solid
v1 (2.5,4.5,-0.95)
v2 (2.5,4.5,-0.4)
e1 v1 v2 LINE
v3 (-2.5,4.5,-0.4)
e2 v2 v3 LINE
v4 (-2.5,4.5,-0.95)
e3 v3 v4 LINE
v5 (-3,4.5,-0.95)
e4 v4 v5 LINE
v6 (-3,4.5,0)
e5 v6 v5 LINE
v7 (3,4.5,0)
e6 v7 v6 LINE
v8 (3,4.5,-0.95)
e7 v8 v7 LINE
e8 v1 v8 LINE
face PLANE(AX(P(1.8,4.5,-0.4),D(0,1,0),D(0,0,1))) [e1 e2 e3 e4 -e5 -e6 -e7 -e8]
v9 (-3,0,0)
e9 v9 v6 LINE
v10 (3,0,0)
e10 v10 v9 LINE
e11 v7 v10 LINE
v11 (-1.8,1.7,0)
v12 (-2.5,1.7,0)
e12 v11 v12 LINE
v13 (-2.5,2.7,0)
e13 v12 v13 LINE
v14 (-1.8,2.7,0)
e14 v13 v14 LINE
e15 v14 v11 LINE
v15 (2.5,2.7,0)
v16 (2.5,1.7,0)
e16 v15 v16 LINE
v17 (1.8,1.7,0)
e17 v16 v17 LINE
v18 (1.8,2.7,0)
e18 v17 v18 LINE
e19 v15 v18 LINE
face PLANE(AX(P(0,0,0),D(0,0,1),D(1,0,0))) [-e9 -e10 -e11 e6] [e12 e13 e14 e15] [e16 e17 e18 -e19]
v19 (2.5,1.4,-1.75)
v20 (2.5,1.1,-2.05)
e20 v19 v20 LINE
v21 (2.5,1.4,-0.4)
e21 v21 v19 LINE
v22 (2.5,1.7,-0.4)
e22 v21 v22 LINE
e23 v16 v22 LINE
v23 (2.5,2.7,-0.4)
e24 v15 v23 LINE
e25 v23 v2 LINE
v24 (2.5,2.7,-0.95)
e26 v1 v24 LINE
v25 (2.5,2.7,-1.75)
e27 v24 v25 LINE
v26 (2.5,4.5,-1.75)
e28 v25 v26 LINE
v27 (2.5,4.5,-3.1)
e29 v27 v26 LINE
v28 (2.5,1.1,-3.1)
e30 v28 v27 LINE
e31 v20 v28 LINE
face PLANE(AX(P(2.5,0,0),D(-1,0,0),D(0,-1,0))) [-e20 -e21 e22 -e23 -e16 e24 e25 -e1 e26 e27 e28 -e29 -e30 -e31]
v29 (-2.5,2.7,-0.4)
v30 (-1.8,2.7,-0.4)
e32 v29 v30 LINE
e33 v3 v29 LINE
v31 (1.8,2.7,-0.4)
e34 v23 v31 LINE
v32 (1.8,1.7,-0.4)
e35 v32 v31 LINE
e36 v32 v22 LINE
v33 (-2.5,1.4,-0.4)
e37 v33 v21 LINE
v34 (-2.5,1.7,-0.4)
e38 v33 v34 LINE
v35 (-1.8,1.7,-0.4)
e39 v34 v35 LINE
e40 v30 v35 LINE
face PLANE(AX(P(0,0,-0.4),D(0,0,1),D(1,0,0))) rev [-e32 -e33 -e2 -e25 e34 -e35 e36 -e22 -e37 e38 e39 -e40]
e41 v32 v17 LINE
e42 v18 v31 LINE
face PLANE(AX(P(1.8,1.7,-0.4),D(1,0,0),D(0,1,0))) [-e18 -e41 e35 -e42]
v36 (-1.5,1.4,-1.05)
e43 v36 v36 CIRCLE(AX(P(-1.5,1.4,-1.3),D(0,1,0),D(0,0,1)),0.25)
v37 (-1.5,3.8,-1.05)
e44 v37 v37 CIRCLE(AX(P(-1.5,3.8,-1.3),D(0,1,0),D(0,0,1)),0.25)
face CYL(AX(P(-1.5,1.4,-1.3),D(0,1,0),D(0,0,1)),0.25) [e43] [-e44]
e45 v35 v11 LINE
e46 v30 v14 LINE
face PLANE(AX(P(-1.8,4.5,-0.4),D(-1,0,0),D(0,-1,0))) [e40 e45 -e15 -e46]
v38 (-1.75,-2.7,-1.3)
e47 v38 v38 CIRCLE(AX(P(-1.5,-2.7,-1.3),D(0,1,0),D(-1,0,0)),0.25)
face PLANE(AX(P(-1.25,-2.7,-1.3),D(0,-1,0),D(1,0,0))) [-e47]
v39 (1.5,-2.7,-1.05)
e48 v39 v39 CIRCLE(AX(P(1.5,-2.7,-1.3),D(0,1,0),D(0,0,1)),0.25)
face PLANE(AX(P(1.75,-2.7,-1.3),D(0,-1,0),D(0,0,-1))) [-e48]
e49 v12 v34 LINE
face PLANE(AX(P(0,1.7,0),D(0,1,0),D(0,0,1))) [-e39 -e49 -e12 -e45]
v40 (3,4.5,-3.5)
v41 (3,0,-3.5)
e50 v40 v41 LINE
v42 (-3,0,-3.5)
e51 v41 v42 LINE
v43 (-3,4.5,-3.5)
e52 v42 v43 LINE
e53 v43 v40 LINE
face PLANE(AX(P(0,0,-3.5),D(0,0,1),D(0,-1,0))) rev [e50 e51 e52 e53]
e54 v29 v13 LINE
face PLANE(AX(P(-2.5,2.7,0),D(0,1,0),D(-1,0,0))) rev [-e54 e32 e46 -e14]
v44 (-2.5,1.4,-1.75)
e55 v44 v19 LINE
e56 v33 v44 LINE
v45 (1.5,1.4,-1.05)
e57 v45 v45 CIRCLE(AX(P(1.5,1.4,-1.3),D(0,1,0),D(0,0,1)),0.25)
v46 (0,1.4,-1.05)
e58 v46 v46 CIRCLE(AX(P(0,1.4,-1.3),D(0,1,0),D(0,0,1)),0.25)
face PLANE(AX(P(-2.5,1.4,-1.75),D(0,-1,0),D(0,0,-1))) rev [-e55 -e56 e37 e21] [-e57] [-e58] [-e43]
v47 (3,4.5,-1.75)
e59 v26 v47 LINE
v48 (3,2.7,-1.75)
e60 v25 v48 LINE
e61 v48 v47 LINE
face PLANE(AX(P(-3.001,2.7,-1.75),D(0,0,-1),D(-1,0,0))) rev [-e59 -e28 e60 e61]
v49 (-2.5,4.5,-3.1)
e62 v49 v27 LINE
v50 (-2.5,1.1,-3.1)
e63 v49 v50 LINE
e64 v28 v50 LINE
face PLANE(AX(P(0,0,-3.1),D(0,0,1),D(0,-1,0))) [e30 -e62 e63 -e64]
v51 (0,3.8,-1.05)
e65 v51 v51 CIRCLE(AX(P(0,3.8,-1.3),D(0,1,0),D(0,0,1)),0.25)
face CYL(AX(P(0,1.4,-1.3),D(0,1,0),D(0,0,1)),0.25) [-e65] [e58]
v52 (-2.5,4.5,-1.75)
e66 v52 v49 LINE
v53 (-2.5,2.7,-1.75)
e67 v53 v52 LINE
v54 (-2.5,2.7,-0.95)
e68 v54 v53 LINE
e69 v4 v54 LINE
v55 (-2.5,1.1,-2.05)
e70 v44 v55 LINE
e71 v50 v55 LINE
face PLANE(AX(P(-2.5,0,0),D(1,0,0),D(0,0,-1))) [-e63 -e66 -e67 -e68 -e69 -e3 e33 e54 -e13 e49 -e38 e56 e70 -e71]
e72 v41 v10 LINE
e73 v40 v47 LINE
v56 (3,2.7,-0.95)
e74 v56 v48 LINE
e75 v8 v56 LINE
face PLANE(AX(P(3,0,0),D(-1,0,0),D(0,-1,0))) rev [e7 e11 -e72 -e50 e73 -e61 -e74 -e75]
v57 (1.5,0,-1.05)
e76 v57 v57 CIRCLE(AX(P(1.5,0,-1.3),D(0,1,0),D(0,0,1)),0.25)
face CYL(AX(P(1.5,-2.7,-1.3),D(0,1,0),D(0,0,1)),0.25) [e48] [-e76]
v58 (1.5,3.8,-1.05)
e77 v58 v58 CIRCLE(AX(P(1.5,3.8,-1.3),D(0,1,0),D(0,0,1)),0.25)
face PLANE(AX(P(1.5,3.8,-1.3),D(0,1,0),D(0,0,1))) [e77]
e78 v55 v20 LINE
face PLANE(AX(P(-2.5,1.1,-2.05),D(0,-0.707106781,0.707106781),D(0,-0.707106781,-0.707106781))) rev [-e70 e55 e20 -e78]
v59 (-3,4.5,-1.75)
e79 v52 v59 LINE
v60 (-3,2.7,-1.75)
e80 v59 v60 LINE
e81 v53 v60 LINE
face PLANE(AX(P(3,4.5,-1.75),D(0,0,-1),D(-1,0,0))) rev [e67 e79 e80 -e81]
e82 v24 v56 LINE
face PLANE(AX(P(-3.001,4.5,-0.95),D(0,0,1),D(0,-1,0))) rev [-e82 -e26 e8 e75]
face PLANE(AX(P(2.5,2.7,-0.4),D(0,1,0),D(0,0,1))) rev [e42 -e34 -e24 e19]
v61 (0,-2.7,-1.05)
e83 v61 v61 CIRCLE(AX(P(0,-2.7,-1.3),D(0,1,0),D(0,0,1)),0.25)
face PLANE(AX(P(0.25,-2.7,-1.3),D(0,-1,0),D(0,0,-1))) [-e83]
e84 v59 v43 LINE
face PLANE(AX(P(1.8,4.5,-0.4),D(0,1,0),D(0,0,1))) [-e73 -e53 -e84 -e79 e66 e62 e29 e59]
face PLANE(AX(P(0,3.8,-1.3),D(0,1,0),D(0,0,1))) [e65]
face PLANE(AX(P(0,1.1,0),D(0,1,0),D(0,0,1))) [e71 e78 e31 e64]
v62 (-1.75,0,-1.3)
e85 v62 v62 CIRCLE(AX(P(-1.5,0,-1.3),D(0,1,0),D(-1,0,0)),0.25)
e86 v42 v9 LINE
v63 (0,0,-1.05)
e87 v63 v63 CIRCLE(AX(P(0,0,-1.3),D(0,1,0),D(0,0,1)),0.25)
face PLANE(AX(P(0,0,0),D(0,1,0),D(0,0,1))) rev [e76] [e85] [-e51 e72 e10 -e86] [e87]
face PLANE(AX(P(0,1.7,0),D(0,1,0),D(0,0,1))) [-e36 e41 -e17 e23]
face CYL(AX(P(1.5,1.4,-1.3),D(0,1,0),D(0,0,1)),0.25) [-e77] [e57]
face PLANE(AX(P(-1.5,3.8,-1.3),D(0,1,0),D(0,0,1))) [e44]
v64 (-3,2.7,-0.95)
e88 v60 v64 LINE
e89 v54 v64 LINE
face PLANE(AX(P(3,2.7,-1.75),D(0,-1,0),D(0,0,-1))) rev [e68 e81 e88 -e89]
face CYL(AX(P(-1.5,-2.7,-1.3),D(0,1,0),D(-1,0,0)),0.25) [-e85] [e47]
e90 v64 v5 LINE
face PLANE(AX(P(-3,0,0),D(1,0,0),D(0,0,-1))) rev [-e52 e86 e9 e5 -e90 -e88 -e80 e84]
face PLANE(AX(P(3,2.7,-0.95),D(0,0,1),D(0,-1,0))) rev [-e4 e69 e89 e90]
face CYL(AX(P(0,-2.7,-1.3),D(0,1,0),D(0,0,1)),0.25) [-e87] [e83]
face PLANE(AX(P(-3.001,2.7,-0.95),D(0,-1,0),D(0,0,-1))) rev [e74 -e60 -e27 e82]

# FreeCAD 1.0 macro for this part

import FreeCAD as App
import Part
import Sketcher
from FreeCAD import Vector
Q = App.Units.Quantity


def add_polygon(sketch, points):
    """Adds a closed chain of lines whose ends are joined by coincident constraints."""
    first, n = sketch.GeometryCount, len(points)
    for a, b in zip(points, points[1:] + points[:1]):
        sketch.addGeometry(Part.LineSegment(App.Vector(*a, 0), App.Vector(*b, 0)), False)
    for i in range(n):
        sketch.addConstraint(Sketcher.Constraint("Coincident", first + i, 2, first + (i + 1) % n, 1))

doc = App.newDocument("Part")
body = doc.addObject("PartDesign::Body", "Body")

# Sketch on XY plane
sketch1 = body.newObject("Sketcher::SketchObject", "Sketch")
sketch1.AttachmentSupport = (doc.getObject("XY_Plane"), [""])
sketch1.MapMode = "FlatFace"
add_polygon(sketch1, [(-1.8, 4.5), (-1.8, 1.7), (1.8, 1.7), (1.8, 4.5)])  # lines 0-3
sketch1.addConstraint([
    Sketcher.Constraint("Vertical", 0),
    Sketcher.Constraint("Horizontal", 1),
    Sketcher.Constraint("Vertical", 2),
    Sketcher.Constraint("Horizontal", 3),
    Sketcher.Constraint("DistanceX", 1, 1, 1, 2, 3.6),
    Sketcher.Constraint("DistanceY", 0, 2, 0, 1, 2.8),
    Sketcher.Constraint("DistanceX", 0, 2, -1, 1, 1.8),
    Sketcher.Constraint("DistanceY", -1, 1, 0, 2, 1.7),
])
pad1 = body.newObject("PartDesign::Pad", "Pad")
pad1.Profile = sketch1
pad1.Length = 0.4
pad1.Reversed = True

# Sketch on YZ plane
sketch2 = body.newObject("Sketcher::SketchObject", "Sketch001")
sketch2.AttachmentSupport = (doc.getObject("YZ_Plane"), [""])
sketch2.MapMode = "FlatFace"
sketch2.AttachmentOffset = App.Placement(Vector(0, 0, -1.8), App.Rotation())
add_polygon(sketch2, [(4.5, -0.4), (2.7, -0.4), (2.7, 0), (4.5, 0)])  # lines 0-3
sketch2.addConstraint([
    Sketcher.Constraint("Horizontal", 0),
    Sketcher.Constraint("Vertical", 1),
    Sketcher.Constraint("Horizontal", 2),
    Sketcher.Constraint("Vertical", 3),
    Sketcher.Constraint("PointOnObject", 1, 2, -1),
    Sketcher.Constraint("DistanceX", 0, 2, 0, 1, 1.8),
    Sketcher.Constraint("DistanceY", 1, 1, 1, 2, 0.4),
    Sketcher.Constraint("DistanceX", -1, 1, 0, 2, 2.7),
])
pad2 = body.newObject("PartDesign::Pad", "Pad001")
pad2.Profile = sketch2
pad2.Length = 0.7
pad2.Reversed = True

# Sketch on YZ plane
sketch3 = body.newObject("Sketcher::SketchObject", "Sketch002")
sketch3.AttachmentSupport = (doc.getObject("YZ_Plane"), [""])
sketch3.MapMode = "FlatFace"
sketch3.AttachmentOffset = App.Placement(Vector(0, 0, 1.8), App.Rotation())
add_polygon(sketch3, [(4.5, 0), (2.7, 0), (2.7, -0.4), (4.5, -0.4)])  # lines 0-3
sketch3.addConstraint([
    Sketcher.Constraint("Horizontal", 0),
    Sketcher.Constraint("Vertical", 1),
    Sketcher.Constraint("Horizontal", 2),
    Sketcher.Constraint("Vertical", 3),
    Sketcher.Constraint("PointOnObject", 0, 2, -1),
    Sketcher.Constraint("DistanceX", 0, 2, 0, 1, 1.8),
    Sketcher.Constraint("DistanceY", 1, 2, 1, 1, 0.4),
    Sketcher.Constraint("DistanceX", -1, 1, 0, 2, 2.7),
])
pad3 = body.newObject("PartDesign::Pad", "Pad002")
pad3.Profile = sketch3
pad3.Length = 0.7

# Sketch on YZ plane
sketch4 = body.newObject("Sketcher::SketchObject", "Sketch003")
sketch4.AttachmentSupport = (doc.getObject("YZ_Plane"), [""])
sketch4.MapMode = "FlatFace"
sketch4.AttachmentOffset = App.Placement(Vector(0, 0, 2.5), App.Rotation())
add_polygon(sketch4, [(4.5, 0), (1.7, 0), (1.7, -3.1), (4.5, -3.1)])  # lines 0-3
sketch4.addConstraint([
    Sketcher.Constraint("Horizontal", 0),
    Sketcher.Constraint("Vertical", 1),
    Sketcher.Constraint("Horizontal", 2),
    Sketcher.Constraint("Vertical", 3),
    Sketcher.Constraint("PointOnObject", 0, 2, -1),
    Sketcher.Constraint("DistanceX", 0, 2, 0, 1, 2.8),
    Sketcher.Constraint("DistanceY", 1, 2, 1, 1, 3.1),
    Sketcher.Constraint("DistanceX", -1, 1, 0, 2, 1.7),
])
pad4 = body.newObject("PartDesign::Pad", "Pad003")
pad4.Profile = sketch4
pad4.Length = 0.5

# Sketch on XZ plane
sketch5 = body.newObject("Sketcher::SketchObject", "Sketch004")
sketch5.AttachmentSupport = (doc.getObject("XZ_Plane"), [""])
sketch5.MapMode = "FlatFace"
sketch5.AttachmentOffset = App.Placement(Vector(0, 0, -1.7), App.Rotation())
add_polygon(sketch5, [(-2.5, 0), (-2.5, -3.1), (3, -3.1), (3, 0)])  # lines 0-3
sketch5.addConstraint([
    Sketcher.Constraint("Vertical", 0),
    Sketcher.Constraint("Horizontal", 1),
    Sketcher.Constraint("Vertical", 2),
    Sketcher.Constraint("Horizontal", 3),
    Sketcher.Constraint("PointOnObject", 2, 2, -1),
    Sketcher.Constraint("DistanceX", 1, 1, 1, 2, 5.5),
    Sketcher.Constraint("DistanceY", 0, 2, 0, 1, 3.1),
    Sketcher.Constraint("DistanceX", -1, 1, 1, 2, 3.0),
])
pad5 = body.newObject("PartDesign::Pad", "Pad004")
pad5.Profile = sketch5
pad5.Length = 1.7

# Sketch on YZ plane
sketch6 = body.newObject("Sketcher::SketchObject", "Sketch005")
sketch6.AttachmentSupport = (doc.getObject("YZ_Plane"), [""])
sketch6.MapMode = "FlatFace"
sketch6.AttachmentOffset = App.Placement(Vector(0, 0, -2.5), App.Rotation())
add_polygon(sketch6, [(4.5, -3.1), (0, -3.1), (0, 0), (4.5, 0)])  # lines 0-3
sketch6.addConstraint([
    Sketcher.Constraint("Horizontal", 0),
    Sketcher.Constraint("Vertical", 1),
    Sketcher.Constraint("Horizontal", 2),
    Sketcher.Constraint("Vertical", 3),
    Sketcher.Constraint("Coincident", 1, 2, -1, 1),
    Sketcher.Constraint("DistanceX", 0, 2, 0, 1, 4.5),
    Sketcher.Constraint("DistanceY", 1, 1, 1, 2, 3.1),
])
pad6 = body.newObject("PartDesign::Pad", "Pad005")
pad6.Profile = sketch6
pad6.Length = 0.5
pad6.Reversed = True

# Sketch on XY plane
sketch7 = body.newObject("Sketcher::SketchObject", "Sketch006")
sketch7.AttachmentSupport = (doc.getObject("XY_Plane"), [""])
sketch7.MapMode = "FlatFace"
sketch7.AttachmentOffset = App.Placement(Vector(0, 0, -3.1), App.Rotation())
add_polygon(sketch7, [(3, 4.5), (3, 0), (-3, 0), (-3, 4.5)])  # lines 0-3
sketch7.addConstraint([
    Sketcher.Constraint("Vertical", 0),
    Sketcher.Constraint("Horizontal", 1),
    Sketcher.Constraint("Vertical", 2),
    Sketcher.Constraint("Horizontal", 3),
    Sketcher.Constraint("Symmetric", 0, 2, 1, 2, -1, 1),
    Sketcher.Constraint("DistanceX", 1, 2, 1, 1, 6.0),
    Sketcher.Constraint("DistanceY", 0, 2, 0, 1, 4.5),
])
pad7 = body.newObject("PartDesign::Pad", "Pad006")
pad7.Profile = sketch7
pad7.Length = 0.4
pad7.Reversed = True

# Sketch on XZ plane
sketch8 = body.newObject("Sketcher::SketchObject", "Sketch007")
sketch8.AttachmentSupport = (doc.getObject("XZ_Plane"), [""])
sketch8.MapMode = "FlatFace"
sketch8.AttachmentOffset = App.Placement(Vector(0, 0, -1.7), App.Rotation())
add_polygon(sketch8, [(2.5, -0.4), (2.5, -3.1), (-2.5, -3.1), (-2.5, -0.4)])  # lines 0-3
sketch8.addConstraint([
    Sketcher.Constraint("Vertical", 0),
    Sketcher.Constraint("Horizontal", 1),
    Sketcher.Constraint("Vertical", 2),
    Sketcher.Constraint("Horizontal", 3),
    Sketcher.Constraint("DistanceX", 1, 2, 1, 1, 5.0),
    Sketcher.Constraint("DistanceY", 0, 2, 0, 1, 2.7),
    Sketcher.Constraint("DistanceX", -1, 1, 0, 2, 2.5),
    Sketcher.Constraint("DistanceY", 0, 2, -1, 1, 3.1),
])
pocket1 = body.newObject("PartDesign::Pocket", "Pocket")
pocket1.Profile = sketch8
pocket1.Length = 0.6
pocket1.Reversed = True

# Sketch on YZ plane
sketch9 = body.newObject("Sketcher::SketchObject", "Sketch008")
sketch9.AttachmentSupport = (doc.getObject("YZ_Plane"), [""])
sketch9.MapMode = "FlatFace"
sketch9.AttachmentOffset = App.Placement(Vector(0, 0, 2.5), App.Rotation())
add_polygon(sketch9, [(1.1, -0.4), (1.4, -0.4), (1.4, -1.75), (1.1, -2.05)])  # lines 0-3
sketch9.addConstraint([
    Sketcher.Constraint("Horizontal", 0),
    Sketcher.Constraint("Vertical", 1),
    Sketcher.Constraint("Vertical", 3),
    Sketcher.Constraint("Angle", 2, Q("-135 deg")),
    Sketcher.Constraint("DistanceX", 0, 1, 0, 2, 0.3),
    Sketcher.Constraint("DistanceY", 1, 2, 1, 1, 1.35),
    Sketcher.Constraint("DistanceX", -1, 1, 0, 2, 1.4),
    Sketcher.Constraint("DistanceY", 0, 2, -1, 1, 0.4),
])
pad8 = body.newObject("PartDesign::Pad", "Pad007")
pad8.Profile = sketch9
pad8.Length = 5
pad8.Reversed = True

# Sketch on YZ plane
sketch10 = body.newObject("Sketcher::SketchObject", "Sketch009")
sketch10.AttachmentSupport = (doc.getObject("YZ_Plane"), [""])
sketch10.MapMode = "FlatFace"
sketch10.AttachmentOffset = App.Placement(Vector(0, 0, 3), App.Rotation())
add_polygon(sketch10, [(4.5, -0.9), (2.7, -0.9), (2.7, -1.8), (4.5, -1.8)])  # lines 0-3
sketch10.addConstraint([
    Sketcher.Constraint("Horizontal", 0),
    Sketcher.Constraint("Vertical", 1),
    Sketcher.Constraint("Horizontal", 2),
    Sketcher.Constraint("Vertical", 3),
    Sketcher.Constraint("DistanceX", 0, 2, 0, 1, 1.8),
    Sketcher.Constraint("DistanceY", 1, 2, 1, 1, 0.8),
    Sketcher.Constraint("DistanceX", -1, 1, 0, 2, 2.7),
    Sketcher.Constraint("DistanceY", 0, 2, -1, 1, 0.95),
])
pocket2 = body.newObject("PartDesign::Pocket", "Pocket001")
pocket2.Profile = sketch10
pocket2.Type = "UpToFirst"

# Sketch on YZ plane
sketch11 = body.newObject("Sketcher::SketchObject", "Sketch010")
sketch11.AttachmentSupport = (doc.getObject("YZ_Plane"), [""])
sketch11.MapMode = "FlatFace"
sketch11.AttachmentOffset = App.Placement(Vector(0, 0, -3), App.Rotation())
add_polygon(sketch11, [(4.5, -1.8), (2.7, -1.8), (2.7, -0.9), (4.5, -0.9)])  # lines 0-3
sketch11.addConstraint([
    Sketcher.Constraint("Horizontal", 0),
    Sketcher.Constraint("Vertical", 1),
    Sketcher.Constraint("Horizontal", 2),
    Sketcher.Constraint("Vertical", 3),
    Sketcher.Constraint("DistanceX", 0, 2, 0, 1, 1.8),
    Sketcher.Constraint("DistanceY", 1, 1, 1, 2, 0.8),
    Sketcher.Constraint("DistanceX", -1, 1, 0, 2, 2.7),
    Sketcher.Constraint("DistanceY", 0, 2, -1, 1, 1.75),
])
pocket3 = body.newObject("PartDesign::Pocket", "Pocket002")
pocket3.Profile = sketch11
pocket3.Type = "ThroughAll"
pocket3.Reversed = True

# Sketch on XY plane
sketch12 = body.newObject("Sketcher::SketchObject", "Sketch011")
sketch12.AttachmentSupport = (doc.getObject("XY_Plane"), [""])
sketch12.MapMode = "FlatFace"
sketch12.AttachmentOffset = App.Placement(Vector(0, 0, -1.3), App.Rotation())
add_polygon(sketch12, [(-1.25, 0), (-1.25, -2.7), (-1.5, -2.7), (-1.5, 0)])  # lines 0-3
sketch12.addGeometry(Part.LineSegment(Vector(-1.5, -2.7, 0), Vector(-1.5, 0, 0)), True)  # axis
sketch12.addConstraint([
    Sketcher.Constraint("Vertical", 0),
    Sketcher.Constraint("Horizontal", 1),
    Sketcher.Constraint("Vertical", 2),
    Sketcher.Constraint("Horizontal", 3),
    Sketcher.Constraint("Vertical", 4),
    Sketcher.Constraint("Coincident", 4, 1, 1, 2),
    Sketcher.Constraint("PointOnObject", 2, 2, -1),
    Sketcher.Constraint("PointOnObject", 4, 2, -1),
    Sketcher.Constraint("DistanceY", 0, 2, 0, 1, 2.7),
    Sketcher.Constraint("DistanceX", 1, 2, 1, 1, 0.25),
    Sketcher.Constraint("DistanceX", 1, 2, -1, 1, 1.5),
])
revolution = body.newObject("PartDesign::Revolution", "Revolution")
revolution.Profile = sketch12
revolution.ReferenceAxis = (sketch12, ["Axis0"])
revolution.Angle = 360

# Sketch on XY plane
sketch13 = body.newObject("Sketcher::SketchObject", "Sketch012")
sketch13.AttachmentSupport = (doc.getObject("XY_Plane"), [""])
sketch13.MapMode = "FlatFace"
sketch13.AttachmentOffset = App.Placement(Vector(0, 0, -1.3), App.Rotation())
add_polygon(sketch13, [(0.25, 0), (0.25, -2.7), (0, -2.7), (0, 0)])  # lines 0-3
sketch13.addConstraint([
    Sketcher.Constraint("Vertical", 0),
    Sketcher.Constraint("Horizontal", 1),
    Sketcher.Constraint("Vertical", 2),
    Sketcher.Constraint("Horizontal", 3),
    Sketcher.Constraint("Coincident", 2, 2, -1, 1),
    Sketcher.Constraint("DistanceY", 0, 2, 0, 1, 2.7),
    Sketcher.Constraint("DistanceX", 1, 2, 1, 1, 0.25),
])
revolution2 = body.newObject("PartDesign::Revolution", "Revolution001")
revolution2.Profile = sketch13
revolution2.ReferenceAxis = (sketch13, ["V_Axis"])
revolution2.Angle = 360

# Sketch on XY plane
sketch14 = body.newObject("Sketcher::SketchObject", "Sketch013")
sketch14.AttachmentSupport = (doc.getObject("XY_Plane"), [""])
sketch14.MapMode = "FlatFace"
sketch14.AttachmentOffset = App.Placement(Vector(0, 0, -1.3), App.Rotation())
add_polygon(sketch14, [(1.75, 0), (1.75, -2.7), (1.5, -2.7), (1.5, 0)])  # lines 0-3
sketch14.addGeometry(Part.LineSegment(Vector(1.5, -2.7, 0), Vector(1.5, 0, 0)), True)  # axis
sketch14.addConstraint([
    Sketcher.Constraint("Vertical", 0),
    Sketcher.Constraint("Horizontal", 1),
    Sketcher.Constraint("Vertical", 2),
    Sketcher.Constraint("Horizontal", 3),
    Sketcher.Constraint("Vertical", 4),
    Sketcher.Constraint("Coincident", 4, 1, 1, 2),
    Sketcher.Constraint("PointOnObject", 2, 2, -1),
    Sketcher.Constraint("PointOnObject", 4, 2, -1),
    Sketcher.Constraint("DistanceY", 0, 2, 0, 1, 2.7),
    Sketcher.Constraint("DistanceX", 1, 2, 1, 1, 0.25),
    Sketcher.Constraint("DistanceX", -1, 1, 1, 2, 1.5),
])
revolution3 = body.newObject("PartDesign::Revolution", "Revolution002")
revolution3.Profile = sketch14
revolution3.ReferenceAxis = (sketch14, ["Axis0"])
revolution3.Angle = 360

# Sketch on XY plane
sketch15 = body.newObject("Sketcher::SketchObject", "Sketch014")
sketch15.AttachmentSupport = (doc.getObject("XY_Plane"), [""])
sketch15.MapMode = "FlatFace"
sketch15.AttachmentOffset = App.Placement(Vector(0, 0, -1.3), App.Rotation())
add_polygon(sketch15, [(1.75, 3.8), (1.75, 1.4), (1.5, 1.4), (1.5, 3.8)])  # lines 0-3
sketch15.addGeometry(Part.LineSegment(Vector(1.5, 1.4, 0), Vector(1.5, 3.8, 0)), True)  # axis
sketch15.addConstraint([
    Sketcher.Constraint("Vertical", 0),
    Sketcher.Constraint("Horizontal", 1),
    Sketcher.Constraint("Vertical", 2),
    Sketcher.Constraint("Horizontal", 3),
    Sketcher.Constraint("Vertical", 4),
    Sketcher.Constraint("Coincident", 4, 1, 1, 2),
    Sketcher.Constraint("Horizontal", 3, 2, 4, 2),
    Sketcher.Constraint("DistanceY", 0, 2, 0, 1, 2.4),
    Sketcher.Constraint("DistanceX", 1, 2, 1, 1, 0.25),
    Sketcher.Constraint("DistanceY", -1, 1, 0, 2, 1.4),
    Sketcher.Constraint("DistanceX", -1, 1, 1, 2, 1.5),
])
revolution4 = body.newObject("PartDesign::Revolution", "Revolution003")
revolution4.Profile = sketch15
revolution4.ReferenceAxis = (sketch15, ["Axis0"])
revolution4.Angle = 360

# Sketch on XY plane
sketch16 = body.newObject("Sketcher::SketchObject", "Sketch015")
sketch16.AttachmentSupport = (doc.getObject("XY_Plane"), [""])
sketch16.MapMode = "FlatFace"
sketch16.AttachmentOffset = App.Placement(Vector(0, 0, -1.3), App.Rotation())
add_polygon(sketch16, [(0.25, 3.8), (0.25, 1.4), (0, 1.4), (0, 3.8)])  # lines 0-3
sketch16.addConstraint([
    Sketcher.Constraint("Vertical", 0),
    Sketcher.Constraint("Horizontal", 1),
    Sketcher.Constraint("Vertical", 2),
    Sketcher.Constraint("Horizontal", 3),
    Sketcher.Constraint("PointOnObject", 1, 2, -2),
    Sketcher.Constraint("DistanceY", 0, 2, 0, 1, 2.4),
    Sketcher.Constraint("DistanceX", 1, 2, 1, 1, 0.25),
    Sketcher.Constraint("DistanceY", -1, 1, 0, 2, 1.4),
])
revolution5 = body.newObject("PartDesign::Revolution", "Revolution004")
revolution5.Profile = sketch16
revolution5.ReferenceAxis = (sketch16, ["V_Axis"])
revolution5.Angle = 360

# Sketch on XY plane
sketch17 = body.newObject("Sketcher::SketchObject", "Sketch016")
sketch17.AttachmentSupport = (doc.getObject("XY_Plane"), [""])
sketch17.MapMode = "FlatFace"
sketch17.AttachmentOffset = App.Placement(Vector(0, 0, -1.3), App.Rotation())
add_polygon(sketch17, [(-1.25, 3.8), (-1.25, 1.4), (-1.5, 1.4), (-1.5, 3.8)])  # lines 0-3
sketch17.addGeometry(Part.LineSegment(Vector(-1.5, 1.4, 0), Vector(-1.5, 3.8, 0)), True)  # axis
sketch17.addConstraint([
    Sketcher.Constraint("Vertical", 0),
    Sketcher.Constraint("Horizontal", 1),
    Sketcher.Constraint("Vertical", 2),
    Sketcher.Constraint("Horizontal", 3),
    Sketcher.Constraint("Vertical", 4),
    Sketcher.Constraint("Coincident", 4, 1, 1, 2),
    Sketcher.Constraint("Horizontal", 3, 2, 4, 2),
    Sketcher.Constraint("DistanceY", 0, 2, 0, 1, 2.4),
    Sketcher.Constraint("DistanceX", 1, 2, 1, 1, 0.25),
    Sketcher.Constraint("DistanceY", -1, 1, 0, 2, 1.4),
    Sketcher.Constraint("DistanceX", 1, 2, -1, 1, 1.5),
])
revolution6 = body.newObject("PartDesign::Revolution", "Revolution005")
revolution6.Profile = sketch17
revolution6.ReferenceAxis = (sketch17, ["Axis0"])
revolution6.Angle = 360

doc.recompute()
